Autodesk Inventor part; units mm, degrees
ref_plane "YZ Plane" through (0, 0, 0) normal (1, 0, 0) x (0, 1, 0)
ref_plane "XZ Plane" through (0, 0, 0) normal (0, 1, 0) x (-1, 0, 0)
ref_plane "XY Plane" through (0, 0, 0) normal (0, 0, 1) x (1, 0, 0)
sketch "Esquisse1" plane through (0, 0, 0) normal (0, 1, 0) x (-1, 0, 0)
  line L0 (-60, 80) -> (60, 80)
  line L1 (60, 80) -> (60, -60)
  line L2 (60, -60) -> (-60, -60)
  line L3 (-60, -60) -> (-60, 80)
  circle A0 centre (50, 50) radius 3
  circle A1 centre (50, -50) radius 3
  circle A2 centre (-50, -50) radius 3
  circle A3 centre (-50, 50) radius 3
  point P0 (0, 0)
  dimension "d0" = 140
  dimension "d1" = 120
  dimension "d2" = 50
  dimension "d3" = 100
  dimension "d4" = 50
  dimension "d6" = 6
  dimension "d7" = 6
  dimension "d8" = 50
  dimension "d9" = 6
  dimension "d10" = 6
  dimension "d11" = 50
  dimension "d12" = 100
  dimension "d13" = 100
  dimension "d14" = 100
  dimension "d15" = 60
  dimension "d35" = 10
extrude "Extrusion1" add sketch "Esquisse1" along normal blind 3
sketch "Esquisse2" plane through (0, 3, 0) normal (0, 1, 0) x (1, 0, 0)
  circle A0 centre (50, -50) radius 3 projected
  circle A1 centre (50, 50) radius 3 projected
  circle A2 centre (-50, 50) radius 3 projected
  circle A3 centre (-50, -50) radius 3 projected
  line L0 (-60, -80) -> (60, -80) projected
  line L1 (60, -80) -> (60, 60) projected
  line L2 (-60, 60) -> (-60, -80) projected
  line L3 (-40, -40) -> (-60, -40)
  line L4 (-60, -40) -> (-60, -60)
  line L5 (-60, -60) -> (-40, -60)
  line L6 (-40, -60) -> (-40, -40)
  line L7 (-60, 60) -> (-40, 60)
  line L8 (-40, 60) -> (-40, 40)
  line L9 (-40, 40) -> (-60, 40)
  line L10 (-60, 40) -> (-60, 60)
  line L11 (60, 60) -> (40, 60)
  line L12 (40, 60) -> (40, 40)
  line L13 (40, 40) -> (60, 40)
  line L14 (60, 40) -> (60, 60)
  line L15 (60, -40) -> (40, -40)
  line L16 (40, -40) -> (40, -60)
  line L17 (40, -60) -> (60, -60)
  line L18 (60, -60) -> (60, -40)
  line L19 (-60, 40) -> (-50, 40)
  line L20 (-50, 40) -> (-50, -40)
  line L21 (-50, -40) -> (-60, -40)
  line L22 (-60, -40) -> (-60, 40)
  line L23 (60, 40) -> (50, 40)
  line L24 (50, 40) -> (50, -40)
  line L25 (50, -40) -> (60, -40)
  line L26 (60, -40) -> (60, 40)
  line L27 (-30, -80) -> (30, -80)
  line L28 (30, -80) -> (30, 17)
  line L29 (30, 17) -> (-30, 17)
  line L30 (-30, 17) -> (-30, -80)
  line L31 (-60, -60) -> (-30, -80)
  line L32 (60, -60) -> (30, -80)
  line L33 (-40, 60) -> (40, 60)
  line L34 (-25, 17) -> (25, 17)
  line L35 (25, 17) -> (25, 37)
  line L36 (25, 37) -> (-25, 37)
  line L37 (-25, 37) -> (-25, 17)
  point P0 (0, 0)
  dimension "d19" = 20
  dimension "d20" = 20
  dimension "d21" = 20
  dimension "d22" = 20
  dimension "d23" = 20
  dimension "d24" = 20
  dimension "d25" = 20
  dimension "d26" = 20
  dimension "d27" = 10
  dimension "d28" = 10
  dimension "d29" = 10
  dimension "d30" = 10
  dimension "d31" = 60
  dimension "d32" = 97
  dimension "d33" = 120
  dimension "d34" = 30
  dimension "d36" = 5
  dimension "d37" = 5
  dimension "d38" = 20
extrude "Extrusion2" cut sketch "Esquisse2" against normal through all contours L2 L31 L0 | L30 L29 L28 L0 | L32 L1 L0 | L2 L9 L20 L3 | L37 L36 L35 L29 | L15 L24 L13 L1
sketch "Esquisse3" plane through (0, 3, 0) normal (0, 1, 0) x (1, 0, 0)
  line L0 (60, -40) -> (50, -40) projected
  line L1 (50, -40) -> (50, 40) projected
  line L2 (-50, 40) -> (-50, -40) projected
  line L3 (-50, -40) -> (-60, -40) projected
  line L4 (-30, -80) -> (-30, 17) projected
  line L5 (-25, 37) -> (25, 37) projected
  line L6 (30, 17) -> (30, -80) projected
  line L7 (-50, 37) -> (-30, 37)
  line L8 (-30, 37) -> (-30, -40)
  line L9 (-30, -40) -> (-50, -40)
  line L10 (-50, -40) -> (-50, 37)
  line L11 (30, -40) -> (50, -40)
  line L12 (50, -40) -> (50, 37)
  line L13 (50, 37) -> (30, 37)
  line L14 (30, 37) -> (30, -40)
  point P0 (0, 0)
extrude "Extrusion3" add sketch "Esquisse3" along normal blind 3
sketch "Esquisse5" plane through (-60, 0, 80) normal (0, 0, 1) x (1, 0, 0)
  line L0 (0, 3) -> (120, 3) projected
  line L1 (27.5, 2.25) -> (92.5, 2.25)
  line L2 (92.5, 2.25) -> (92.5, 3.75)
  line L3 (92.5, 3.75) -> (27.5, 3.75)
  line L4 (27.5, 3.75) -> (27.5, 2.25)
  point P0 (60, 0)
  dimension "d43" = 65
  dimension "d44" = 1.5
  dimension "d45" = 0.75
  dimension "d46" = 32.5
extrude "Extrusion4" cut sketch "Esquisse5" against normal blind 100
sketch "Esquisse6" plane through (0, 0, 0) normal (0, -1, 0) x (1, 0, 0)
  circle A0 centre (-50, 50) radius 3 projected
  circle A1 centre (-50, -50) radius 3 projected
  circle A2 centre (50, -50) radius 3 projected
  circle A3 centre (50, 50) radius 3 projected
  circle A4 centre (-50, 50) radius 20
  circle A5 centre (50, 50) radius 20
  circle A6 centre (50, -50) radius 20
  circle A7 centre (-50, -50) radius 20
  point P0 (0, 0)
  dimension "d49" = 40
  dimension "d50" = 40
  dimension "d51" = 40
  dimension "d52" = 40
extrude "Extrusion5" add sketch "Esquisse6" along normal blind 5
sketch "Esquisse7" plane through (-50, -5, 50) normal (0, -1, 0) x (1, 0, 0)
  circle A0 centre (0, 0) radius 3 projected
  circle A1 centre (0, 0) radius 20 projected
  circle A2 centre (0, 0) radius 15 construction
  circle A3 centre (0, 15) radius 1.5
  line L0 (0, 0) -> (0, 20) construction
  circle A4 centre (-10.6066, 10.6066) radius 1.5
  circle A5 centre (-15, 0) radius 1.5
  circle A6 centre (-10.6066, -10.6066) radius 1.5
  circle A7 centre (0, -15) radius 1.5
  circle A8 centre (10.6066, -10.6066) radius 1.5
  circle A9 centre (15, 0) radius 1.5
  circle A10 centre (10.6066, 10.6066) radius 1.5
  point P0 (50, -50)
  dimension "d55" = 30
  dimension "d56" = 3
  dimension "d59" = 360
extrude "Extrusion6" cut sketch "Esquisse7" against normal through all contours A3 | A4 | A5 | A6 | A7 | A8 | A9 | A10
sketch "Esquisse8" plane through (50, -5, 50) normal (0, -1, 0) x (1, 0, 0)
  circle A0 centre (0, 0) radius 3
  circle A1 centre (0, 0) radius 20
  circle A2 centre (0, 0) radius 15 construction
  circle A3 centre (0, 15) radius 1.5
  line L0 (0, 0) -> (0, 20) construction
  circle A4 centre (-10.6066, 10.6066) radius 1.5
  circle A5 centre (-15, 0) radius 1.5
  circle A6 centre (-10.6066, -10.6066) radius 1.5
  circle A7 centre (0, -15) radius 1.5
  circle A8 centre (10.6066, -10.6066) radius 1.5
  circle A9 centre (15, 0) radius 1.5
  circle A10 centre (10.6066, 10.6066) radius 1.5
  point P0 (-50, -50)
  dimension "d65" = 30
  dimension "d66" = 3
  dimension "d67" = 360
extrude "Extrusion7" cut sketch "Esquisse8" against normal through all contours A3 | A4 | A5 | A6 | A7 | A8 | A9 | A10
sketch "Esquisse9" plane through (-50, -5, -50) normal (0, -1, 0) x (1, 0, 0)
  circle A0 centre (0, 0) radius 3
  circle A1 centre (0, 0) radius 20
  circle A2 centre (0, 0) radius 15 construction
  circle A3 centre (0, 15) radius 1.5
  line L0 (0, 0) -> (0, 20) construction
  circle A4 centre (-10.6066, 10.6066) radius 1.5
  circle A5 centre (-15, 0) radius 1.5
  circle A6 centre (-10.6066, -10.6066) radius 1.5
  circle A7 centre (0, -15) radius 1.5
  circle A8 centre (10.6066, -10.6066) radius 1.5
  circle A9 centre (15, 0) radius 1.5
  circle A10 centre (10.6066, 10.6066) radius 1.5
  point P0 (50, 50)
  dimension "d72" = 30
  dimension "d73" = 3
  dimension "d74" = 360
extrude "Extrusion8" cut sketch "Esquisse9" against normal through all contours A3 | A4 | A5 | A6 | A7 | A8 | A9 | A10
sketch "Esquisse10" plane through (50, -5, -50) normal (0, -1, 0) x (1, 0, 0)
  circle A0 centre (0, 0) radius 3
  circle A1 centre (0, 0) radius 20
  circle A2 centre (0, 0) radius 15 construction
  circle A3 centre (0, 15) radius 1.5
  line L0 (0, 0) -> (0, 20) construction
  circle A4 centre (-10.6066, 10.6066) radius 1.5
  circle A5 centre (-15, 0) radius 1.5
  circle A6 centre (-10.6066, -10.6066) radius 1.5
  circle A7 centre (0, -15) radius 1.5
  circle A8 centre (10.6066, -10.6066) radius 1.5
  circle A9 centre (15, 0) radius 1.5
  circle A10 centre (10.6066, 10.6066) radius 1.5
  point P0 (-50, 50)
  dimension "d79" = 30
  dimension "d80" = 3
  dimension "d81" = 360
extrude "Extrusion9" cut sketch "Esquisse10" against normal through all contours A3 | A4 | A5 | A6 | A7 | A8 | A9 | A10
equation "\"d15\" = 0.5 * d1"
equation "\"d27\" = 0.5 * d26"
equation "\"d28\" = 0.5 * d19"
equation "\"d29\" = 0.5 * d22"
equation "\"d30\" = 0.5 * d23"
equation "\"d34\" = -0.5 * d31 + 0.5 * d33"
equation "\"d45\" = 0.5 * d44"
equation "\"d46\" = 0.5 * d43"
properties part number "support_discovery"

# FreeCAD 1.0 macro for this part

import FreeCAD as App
import Part
import Sketcher
from FreeCAD import Vector
Q = App.Units.Quantity


def add_polygon(sketch, points):
    """Adds a closed chain of lines whose ends are joined by coincident constraints."""
    first, n = sketch.GeometryCount, len(points)
    for a, b in zip(points, points[1:] + points[:1]):
        sketch.addGeometry(Part.LineSegment(App.Vector(*a, 0), App.Vector(*b, 0)), False)
    for i in range(n):
        sketch.addConstraint(Sketcher.Constraint("Coincident", first + i, 2, first + (i + 1) % n, 1))

doc = App.newDocument("Part")
body = doc.addObject("PartDesign::Body", "Body")

sketch1 = body.newObject("Sketcher::SketchObject", "Sketch")
sketch1.AttachmentSupport = (doc.getObject("XZ_Plane"), [""])
sketch1.MapMode = "FlatFace"
add_polygon(sketch1, [(-60, 80), (60, 80), (60, -60), (-60, -60)])
sketch1.addGeometry(Part.Circle(Vector(50, -50, 0), Vector(0, 0, 1), 3), False)
sketch1.addGeometry(Part.Circle(Vector(-50, -50, 0), Vector(0, 0, 1), 3), False)
sketch1.addGeometry(Part.Circle(Vector(50, 50, 0), Vector(0, 0, 1), 3), False)
sketch1.addGeometry(Part.Circle(Vector(-50, 50, 0), Vector(0, 0, 1), 3), False)
sketch1.addConstraint(Sketcher.Constraint("Horizontal", 0))
sketch1.addConstraint(Sketcher.Constraint("Vertical", 1))
sketch1.addConstraint(Sketcher.Constraint("Horizontal", 2))
sketch1.addConstraint(Sketcher.Constraint("Vertical", 3))
sketch1.addConstraint(Sketcher.Constraint("Equal", 4, 5))
sketch1.addConstraint(Sketcher.Constraint("Equal", 5, 6))
sketch1.addConstraint(Sketcher.Constraint("Equal", 6, 7))
sketch1.addConstraint(Sketcher.Constraint("Symmetric", 5, 3, 6, 3, -1, 1))
sketch1.addConstraint(Sketcher.Constraint("Symmetric", 4, 3, 7, 3, -1, 1))
sketch1.addConstraint(Sketcher.Constraint("Symmetric", 4, 3, 5, 3, -2))
sketch1.addConstraint(Sketcher.Constraint("Diameter", 4, Q("6 mm")))
sketch1.addConstraint(Sketcher.Constraint("DistanceX", 0, 1, 0, 2, Q("120 mm")))
sketch1.addConstraint(Sketcher.Constraint("DistanceY", 1, 2, 1, 1, Q("140 mm")))
sketch1.addConstraint(Sketcher.Constraint("DistanceX", -1, 1, 4, 3, Q("50 mm")))
sketch1.addConstraint(Sketcher.Constraint("DistanceY", 4, 3, -1, 1, Q("50 mm")))
sketch1.addConstraint(Sketcher.Constraint("DistanceX", -1, 1, 0, 2, Q("60 mm")))
sketch1.addConstraint(Sketcher.Constraint("DistanceY", 1, 2, -1, 1, Q("60 mm")))
pad1 = body.newObject("PartDesign::Pad", "Pad")
pad1.Profile = sketch1
pad1.Length = 3
pad1.Reversed = True

sketch2 = body.newObject("Sketcher::SketchObject", "Sketch001")
sketch2.AttachmentSupport = (doc.getObject("XZ_Plane"), [""])
sketch2.MapMode = "FlatFace"
sketch2.AttachmentOffset = App.Placement(Vector(0, 0, -3), App.Rotation())
add_polygon(sketch2, [(-60, 60), (-60, 80), (-30, 80)])
add_polygon(sketch2, [(-30, -17), (-30, 80), (30, 80), (30, -17), (25, -17), (25, -37), (-25, -37), (-25, -17)])
add_polygon(sketch2, [(60, 60), (30, 80), (60, 80)])
add_polygon(sketch2, [(-60, -40), (-60, 40), (-50, 40), (-50, -40)])
add_polygon(sketch2, [(50, 40), (60, 40), (60, -40), (50, -40)])
sketch2.addConstraint(Sketcher.Constraint("Vertical", 0))
sketch2.addConstraint(Sketcher.Constraint("Horizontal", 1))
sketch2.addConstraint(Sketcher.Constraint("Vertical", 3))
sketch2.addConstraint(Sketcher.Constraint("Horizontal", 4))
sketch2.addConstraint(Sketcher.Constraint("Vertical", 5))
sketch2.addConstraint(Sketcher.Constraint("Horizontal", 6))
sketch2.addConstraint(Sketcher.Constraint("Vertical", 7))
sketch2.addConstraint(Sketcher.Constraint("Horizontal", 8))
sketch2.addConstraint(Sketcher.Constraint("Vertical", 9))
sketch2.addConstraint(Sketcher.Constraint("Horizontal", 10))
sketch2.addConstraint(Sketcher.Constraint("Horizontal", 12))
sketch2.addConstraint(Sketcher.Constraint("Vertical", 13))
sketch2.addConstraint(Sketcher.Constraint("Vertical", 14))
sketch2.addConstraint(Sketcher.Constraint("Horizontal", 15))
sketch2.addConstraint(Sketcher.Constraint("Vertical", 16))
sketch2.addConstraint(Sketcher.Constraint("Horizontal", 17))
sketch2.addConstraint(Sketcher.Constraint("Horizontal", 18))
sketch2.addConstraint(Sketcher.Constraint("Vertical", 19))
sketch2.addConstraint(Sketcher.Constraint("Horizontal", 20))
sketch2.addConstraint(Sketcher.Constraint("Vertical", 21))
sketch2.addConstraint(Sketcher.Constraint("Coincident", 3, 2, 1, 2))
sketch2.addConstraint(Sketcher.Constraint("Coincident", 11, 2, 4, 2))
sketch2.addConstraint(Sketcher.Constraint("Symmetric", 17, 2, 18, 2, -1, 1))
sketch2.addConstraint(Sketcher.Constraint("Symmetric", 15, 2, 20, 2, -1, 1))
sketch2.addConstraint(Sketcher.Constraint("Symmetric", 6, 2, 9, 2, -2))
sketch2.addConstraint(Sketcher.Constraint("Symmetric", 2, 2, 13, 2, -2))
sketch2.addConstraint(Sketcher.Constraint("Horizontal", 15, 2, 18, 2))
sketch2.addConstraint(Sketcher.Constraint("Vertical", 2, 2, 14, 2))
sketch2.addConstraint(Sketcher.Constraint("Equal", 6, 10))
sketch2.addConstraint(Sketcher.Constraint("Equal", 0, 7))
sketch2.addConstraint(Sketcher.Constraint("DistanceX", 1, 1, 1, 2, Q("30 mm")))
sketch2.addConstraint(Sketcher.Constraint("DistanceX", 4, 1, 4, 2, Q("60 mm")))
sketch2.addConstraint(Sketcher.Constraint("DistanceX", 6, 2, 6, 1, Q("5 mm")))
sketch2.addConstraint(Sketcher.Constraint("DistanceX", 15, 1, 15, 2, Q("10 mm")))
sketch2.addConstraint(Sketcher.Constraint("DistanceY", 0, 1, 0, 2, Q("20 mm")))
sketch2.addConstraint(Sketcher.Constraint("DistanceY", 3, 1, 3, 2, Q("97 mm")))
sketch2.addConstraint(Sketcher.Constraint("DistanceY", -1, 1, 2, 2, Q("60 mm")))
sketch2.addConstraint(Sketcher.Constraint("DistanceY", 14, 2, 2, 2, Q("20 mm")))
pocket1 = body.newObject("PartDesign::Pocket", "Pocket")
pocket1.Profile = sketch2
pocket1.Type = "ThroughAll"
pocket1.Reversed = True

sketch3 = body.newObject("Sketcher::SketchObject", "Sketch002")
sketch3.AttachmentSupport = (doc.getObject("XZ_Plane"), [""])
sketch3.MapMode = "FlatFace"
sketch3.AttachmentOffset = App.Placement(Vector(0, 0, -3), App.Rotation())
add_polygon(sketch3, [(30, 40), (50, 40), (50, -37), (30, -37)])
add_polygon(sketch3, [(-30, -37), (-50, -37), (-50, 40), (-30, 40)])
sketch3.addConstraint(Sketcher.Constraint("Horizontal", 0))
sketch3.addConstraint(Sketcher.Constraint("Vertical", 1))
sketch3.addConstraint(Sketcher.Constraint("Horizontal", 2))
sketch3.addConstraint(Sketcher.Constraint("Vertical", 3))
sketch3.addConstraint(Sketcher.Constraint("Horizontal", 4))
sketch3.addConstraint(Sketcher.Constraint("Vertical", 5))
sketch3.addConstraint(Sketcher.Constraint("Horizontal", 6))
sketch3.addConstraint(Sketcher.Constraint("Vertical", 7))
sketch3.addConstraint(Sketcher.Constraint("Symmetric", 1, 2, 4, 2, -2))
sketch3.addConstraint(Sketcher.Constraint("Symmetric", 3, 2, 6, 2, -2))
sketch3.addConstraint(Sketcher.Constraint("DistanceX", 0, 1, 0, 2, Q("20 mm")))
sketch3.addConstraint(Sketcher.Constraint("DistanceY", 1, 2, 1, 1, Q("77 mm")))
sketch3.addConstraint(Sketcher.Constraint("DistanceX", -1, 1, 0, 2, Q("50 mm")))
sketch3.addConstraint(Sketcher.Constraint("DistanceY", -1, 1, 0, 2, Q("40 mm")))
pad2 = body.newObject("PartDesign::Pad", "Pad001")
pad2.Profile = sketch3
pad2.Length = 3
pad2.Reversed = True

sketch4 = body.newObject("Sketcher::SketchObject", "Sketch003")
sketch4.AttachmentSupport = (doc.getObject("XY_Plane"), [""])
sketch4.MapMode = "FlatFace"
sketch4.AttachmentOffset = App.Placement(Vector(0, 0, 80), App.Rotation())
add_polygon(sketch4, [(-32.5, 3.75), (-32.5, 2.25), (32.5, 2.25), (32.5, 3.75)])
sketch4.addConstraint(Sketcher.Constraint("Vertical", 0))
sketch4.addConstraint(Sketcher.Constraint("Horizontal", 1))
sketch4.addConstraint(Sketcher.Constraint("Vertical", 2))
sketch4.addConstraint(Sketcher.Constraint("Horizontal", 3))
sketch4.addConstraint(Sketcher.Constraint("DistanceX", 1, 1, 1, 2, Q("65 mm")))
sketch4.addConstraint(Sketcher.Constraint("DistanceY", 0, 2, 0, 1, Q("1.5 mm")))
sketch4.addConstraint(Sketcher.Constraint("DistanceX", 0, 2, -1, 1, Q("32.5 mm")))
sketch4.addConstraint(Sketcher.Constraint("DistanceY", -1, 1, 0, 2, Q("2.25 mm")))
pocket2 = body.newObject("PartDesign::Pocket", "Pocket001")
pocket2.Profile = sketch4
pocket2.Length = 100

sketch5 = body.newObject("Sketcher::SketchObject", "Sketch004")
sketch5.AttachmentSupport = (doc.getObject("XZ_Plane"), [""])
sketch5.MapMode = "FlatFace"
sketch5.addGeometry(Part.Circle(Vector(-50, 50, 0), Vector(0, 0, 1), 20), False)
sketch5.addGeometry(Part.Circle(Vector(-50, 50, 0), Vector(0, 0, 1), 3), False)
sketch5.addGeometry(Part.Circle(Vector(50, 50, 0), Vector(0, 0, 1), 20), False)
sketch5.addGeometry(Part.Circle(Vector(50, 50, 0), Vector(0, 0, 1), 3), False)
sketch5.addGeometry(Part.Circle(Vector(50, -50, 0), Vector(0, 0, 1), 20), False)
sketch5.addGeometry(Part.Circle(Vector(50, -50, 0), Vector(0, 0, 1), 3), False)
sketch5.addGeometry(Part.Circle(Vector(-50, -50, 0), Vector(0, 0, 1), 20), False)
sketch5.addGeometry(Part.Circle(Vector(-50, -50, 0), Vector(0, 0, 1), 3), False)
sketch5.addConstraint(Sketcher.Constraint("Coincident", 1, 3, 0, 3))
sketch5.addConstraint(Sketcher.Constraint("Coincident", 3, 3, 2, 3))
sketch5.addConstraint(Sketcher.Constraint("Coincident", 5, 3, 4, 3))
sketch5.addConstraint(Sketcher.Constraint("Coincident", 7, 3, 6, 3))
sketch5.addConstraint(Sketcher.Constraint("Equal", 0, 2))
sketch5.addConstraint(Sketcher.Constraint("Equal", 1, 3))
sketch5.addConstraint(Sketcher.Constraint("Equal", 2, 4))
sketch5.addConstraint(Sketcher.Constraint("Equal", 3, 5))
sketch5.addConstraint(Sketcher.Constraint("Equal", 4, 6))
sketch5.addConstraint(Sketcher.Constraint("Equal", 5, 7))
sketch5.addConstraint(Sketcher.Constraint("Symmetric", 0, 3, 4, 3, -1, 1))
sketch5.addConstraint(Sketcher.Constraint("Symmetric", 2, 3, 6, 3, -1, 1))
sketch5.addConstraint(Sketcher.Constraint("Symmetric", 0, 3, 2, 3, -2))
sketch5.addConstraint(Sketcher.Constraint("Diameter", 0, Q("40 mm")))
sketch5.addConstraint(Sketcher.Constraint("Diameter", 1, Q("6 mm")))
sketch5.addConstraint(Sketcher.Constraint("DistanceX", 0, 3, -1, 1, Q("50 mm")))
sketch5.addConstraint(Sketcher.Constraint("DistanceY", -1, 1, 0, 3, Q("50 mm")))
pad3 = body.newObject("PartDesign::Pad", "Pad002")
pad3.Profile = sketch5
pad3.Length = 5

sketch6 = body.newObject("Sketcher::SketchObject", "Sketch005")
sketch6.AttachmentSupport = (doc.getObject("XZ_Plane"), [""])
sketch6.MapMode = "FlatFace"
sketch6.AttachmentOffset = App.Placement(Vector(0, 0, 5), App.Rotation())
sketch6.addGeometry(Part.Circle(Vector(-50, 65, 0), Vector(0, 0, 1), 1.5), False)
sketch6.addGeometry(Part.Circle(Vector(-60.6066, 60.6066, 0), Vector(0, 0, 1), 1.5), False)
sketch6.addGeometry(Part.Circle(Vector(-65, 50, 0), Vector(0, 0, 1), 1.5), False)
sketch6.addGeometry(Part.Circle(Vector(-60.6066, 39.3934, 0), Vector(0, 0, 1), 1.5), False)
sketch6.addGeometry(Part.Circle(Vector(-50, 35, 0), Vector(0, 0, 1), 1.5), False)
sketch6.addGeometry(Part.Circle(Vector(-39.3934, 39.3934, 0), Vector(0, 0, 1), 1.5), False)
sketch6.addGeometry(Part.Circle(Vector(-35, 50, 0), Vector(0, 0, 1), 1.5), False)
sketch6.addGeometry(Part.Circle(Vector(-39.3934, 60.6066, 0), Vector(0, 0, 1), 1.5), False)
sketch6.addConstraint(Sketcher.Constraint("Equal", 0, 1))
sketch6.addConstraint(Sketcher.Constraint("Equal", 1, 2))
sketch6.addConstraint(Sketcher.Constraint("Equal", 2, 3))
sketch6.addConstraint(Sketcher.Constraint("Equal", 3, 4))
sketch6.addConstraint(Sketcher.Constraint("Equal", 4, 5))
sketch6.addConstraint(Sketcher.Constraint("Equal", 5, 6))
sketch6.addConstraint(Sketcher.Constraint("Equal", 6, 7))
sketch6.addConstraint(Sketcher.Constraint("Horizontal", 3, 3, 5, 3))
sketch6.addConstraint(Sketcher.Constraint("Horizontal", 2, 3, 6, 3))
sketch6.addConstraint(Sketcher.Constraint("Horizontal", 1, 3, 7, 3))
sketch6.addConstraint(Sketcher.Constraint("Vertical", 1, 3, 3, 3))
sketch6.addConstraint(Sketcher.Constraint("Vertical", 0, 3, 4, 3))
sketch6.addConstraint(Sketcher.Constraint("Vertical", 5, 3, 7, 3))
sketch6.addConstraint(Sketcher.Constraint("Diameter", 0, Q("3 mm")))
sketch6.addConstraint(Sketcher.Constraint("DistanceY", 4, 3, 0, 3, Q("30 mm")))
sketch6.addConstraint(Sketcher.Constraint("DistanceX", 0, 3, -1, 1, Q("50 mm")))
sketch6.addConstraint(Sketcher.Constraint("DistanceY", -1, 1, 0, 3, Q("65 mm")))
sketch6.addConstraint(Sketcher.Constraint("DistanceX", 2, 3, -1, 1, Q("65 mm")))
sketch6.addConstraint(Sketcher.Constraint("DistanceY", -1, 1, 2, 3, Q("50 mm")))
sketch6.addConstraint(Sketcher.Constraint("DistanceX", 6, 3, -1, 1, Q("35 mm")))
sketch6.addConstraint(Sketcher.Constraint("DistanceX", 1, 3, -1, 1, Q("60.6066 mm")))
sketch6.addConstraint(Sketcher.Constraint("DistanceY", -1, 1, 1, 3, Q("60.6066 mm")))
sketch6.addConstraint(Sketcher.Constraint("DistanceY", -1, 1, 3, 3, Q("39.3934 mm")))
sketch6.addConstraint(Sketcher.Constraint("DistanceX", 5, 3, -1, 1, Q("39.3934 mm")))
pocket3 = body.newObject("PartDesign::Pocket", "Pocket002")
pocket3.Profile = sketch6
pocket3.Type = "ThroughAll"

sketch7 = body.newObject("Sketcher::SketchObject", "Sketch006")
sketch7.AttachmentSupport = (doc.getObject("XZ_Plane"), [""])
sketch7.MapMode = "FlatFace"
sketch7.AttachmentOffset = App.Placement(Vector(0, 0, 5), App.Rotation())
sketch7.addGeometry(Part.Circle(Vector(50, 65, 0), Vector(0, 0, 1), 1.5), False)
sketch7.addGeometry(Part.Circle(Vector(39.3934, 60.6066, 0), Vector(0, 0, 1), 1.5), False)
sketch7.addGeometry(Part.Circle(Vector(35, 50, 0), Vector(0, 0, 1), 1.5), False)
sketch7.addGeometry(Part.Circle(Vector(39.3934, 39.3934, 0), Vector(0, 0, 1), 1.5), False)
sketch7.addGeometry(Part.Circle(Vector(50, 35, 0), Vector(0, 0, 1), 1.5), False)
sketch7.addGeometry(Part.Circle(Vector(60.6066, 39.3934, 0), Vector(0, 0, 1), 1.5), False)
sketch7.addGeometry(Part.Circle(Vector(65, 50, 0), Vector(0, 0, 1), 1.5), False)
sketch7.addGeometry(Part.Circle(Vector(60.6066, 60.6066, 0), Vector(0, 0, 1), 1.5), False)
sketch7.addConstraint(Sketcher.Constraint("Equal", 0, 1))
sketch7.addConstraint(Sketcher.Constraint("Equal", 1, 2))
sketch7.addConstraint(Sketcher.Constraint("Equal", 2, 3))
sketch7.addConstraint(Sketcher.Constraint("Equal", 3, 4))
sketch7.addConstraint(Sketcher.Constraint("Equal", 4, 5))
sketch7.addConstraint(Sketcher.Constraint("Equal", 5, 6))
sketch7.addConstraint(Sketcher.Constraint("Equal", 6, 7))
sketch7.addConstraint(Sketcher.Constraint("Horizontal", 3, 3, 5, 3))
sketch7.addConstraint(Sketcher.Constraint("Horizontal", 2, 3, 6, 3))
sketch7.addConstraint(Sketcher.Constraint("Horizontal", 1, 3, 7, 3))
sketch7.addConstraint(Sketcher.Constraint("Vertical", 1, 3, 3, 3))
sketch7.addConstraint(Sketcher.Constraint("Vertical", 0, 3, 4, 3))
sketch7.addConstraint(Sketcher.Constraint("Vertical", 5, 3, 7, 3))
sketch7.addConstraint(Sketcher.Constraint("Diameter", 0, Q("3 mm")))
sketch7.addConstraint(Sketcher.Constraint("DistanceY", 4, 3, 0, 3, Q("30 mm")))
sketch7.addConstraint(Sketcher.Constraint("DistanceX", -1, 1, 0, 3, Q("50 mm")))
sketch7.addConstraint(Sketcher.Constraint("DistanceY", -1, 1, 0, 3, Q("65 mm")))
sketch7.addConstraint(Sketcher.Constraint("DistanceX", -1, 1, 2, 3, Q("35 mm")))
sketch7.addConstraint(Sketcher.Constraint("DistanceY", -1, 1, 2, 3, Q("50 mm")))
sketch7.addConstraint(Sketcher.Constraint("DistanceX", -1, 1, 6, 3, Q("65 mm")))
sketch7.addConstraint(Sketcher.Constraint("DistanceX", -1, 1, 1, 3, Q("39.3934 mm")))
sketch7.addConstraint(Sketcher.Constraint("DistanceY", -1, 1, 1, 3, Q("60.6066 mm")))
sketch7.addConstraint(Sketcher.Constraint("DistanceY", -1, 1, 3, 3, Q("39.3934 mm")))
sketch7.addConstraint(Sketcher.Constraint("DistanceX", -1, 1, 5, 3, Q("60.6066 mm")))
pocket4 = body.newObject("PartDesign::Pocket", "Pocket003")
pocket4.Profile = sketch7
pocket4.Type = "ThroughAll"

sketch8 = body.newObject("Sketcher::SketchObject", "Sketch007")
sketch8.AttachmentSupport = (doc.getObject("XZ_Plane"), [""])
sketch8.MapMode = "FlatFace"
sketch8.AttachmentOffset = App.Placement(Vector(0, 0, 5), App.Rotation())
sketch8.addGeometry(Part.Circle(Vector(-50, -35, 0), Vector(0, 0, 1), 1.5), False)
sketch8.addGeometry(Part.Circle(Vector(-60.6066, -39.3934, 0), Vector(0, 0, 1), 1.5), False)
sketch8.addGeometry(Part.Circle(Vector(-65, -50, 0), Vector(0, 0, 1), 1.5), False)
sketch8.addGeometry(Part.Circle(Vector(-60.6066, -60.6066, 0), Vector(0, 0, 1), 1.5), False)
sketch8.addGeometry(Part.Circle(Vector(-50, -65, 0), Vector(0, 0, 1), 1.5), False)
sketch8.addGeometry(Part.Circle(Vector(-39.3934, -60.6066, 0), Vector(0, 0, 1), 1.5), False)
sketch8.addGeometry(Part.Circle(Vector(-35, -50, 0), Vector(0, 0, 1), 1.5), False)
sketch8.addGeometry(Part.Circle(Vector(-39.3934, -39.3934, 0), Vector(0, 0, 1), 1.5), False)
sketch8.addConstraint(Sketcher.Constraint("Equal", 0, 1))
sketch8.addConstraint(Sketcher.Constraint("Equal", 1, 2))
sketch8.addConstraint(Sketcher.Constraint("Equal", 2, 3))
sketch8.addConstraint(Sketcher.Constraint("Equal", 3, 4))
sketch8.addConstraint(Sketcher.Constraint("Equal", 4, 5))
sketch8.addConstraint(Sketcher.Constraint("Equal", 5, 6))
sketch8.addConstraint(Sketcher.Constraint("Equal", 6, 7))
sketch8.addConstraint(Sketcher.Constraint("Horizontal", 3, 3, 5, 3))
sketch8.addConstraint(Sketcher.Constraint("Horizontal", 2, 3, 6, 3))
sketch8.addConstraint(Sketcher.Constraint("Horizontal", 1, 3, 7, 3))
sketch8.addConstraint(Sketcher.Constraint("Vertical", 1, 3, 3, 3))
sketch8.addConstraint(Sketcher.Constraint("Vertical", 0, 3, 4, 3))
sketch8.addConstraint(Sketcher.Constraint("Vertical", 5, 3, 7, 3))
sketch8.addConstraint(Sketcher.Constraint("Diameter", 0, Q("3 mm")))
sketch8.addConstraint(Sketcher.Constraint("DistanceY", 4, 3, 0, 3, Q("30 mm")))
sketch8.addConstraint(Sketcher.Constraint("DistanceX", 0, 3, -1, 1, Q("50 mm")))
sketch8.addConstraint(Sketcher.Constraint("DistanceY", 0, 3, -1, 1, Q("35 mm")))
sketch8.addConstraint(Sketcher.Constraint("DistanceX", 2, 3, -1, 1, Q("65 mm")))
sketch8.addConstraint(Sketcher.Constraint("DistanceY", 2, 3, -1, 1, Q("50 mm")))
sketch8.addConstraint(Sketcher.Constraint("DistanceX", 6, 3, -1, 1, Q("35 mm")))
sketch8.addConstraint(Sketcher.Constraint("DistanceX", 1, 3, -1, 1, Q("60.6066 mm")))
sketch8.addConstraint(Sketcher.Constraint("DistanceY", 1, 3, -1, 1, Q("39.3934 mm")))
sketch8.addConstraint(Sketcher.Constraint("DistanceY", 3, 3, -1, 1, Q("60.6066 mm")))
sketch8.addConstraint(Sketcher.Constraint("DistanceX", 5, 3, -1, 1, Q("39.3934 mm")))
pocket5 = body.newObject("PartDesign::Pocket", "Pocket004")
pocket5.Profile = sketch8
pocket5.Type = "ThroughAll"

sketch9 = body.newObject("Sketcher::SketchObject", "Sketch008")
sketch9.AttachmentSupport = (doc.getObject("XZ_Plane"), [""])
sketch9.MapMode = "FlatFace"
sketch9.AttachmentOffset = App.Placement(Vector(0, 0, 5), App.Rotation())
sketch9.addGeometry(Part.Circle(Vector(50, -35, 0), Vector(0, 0, 1), 1.5), False)
sketch9.addGeometry(Part.Circle(Vector(39.3934, -39.3934, 0), Vector(0, 0, 1), 1.5), False)
sketch9.addGeometry(Part.Circle(Vector(35, -50, 0), Vector(0, 0, 1), 1.5), False)
sketch9.addGeometry(Part.Circle(Vector(39.3934, -60.6066, 0), Vector(0, 0, 1), 1.5), False)
sketch9.addGeometry(Part.Circle(Vector(50, -65, 0), Vector(0, 0, 1), 1.5), False)
sketch9.addGeometry(Part.Circle(Vector(60.6066, -60.6066, 0), Vector(0, 0, 1), 1.5), False)
sketch9.addGeometry(Part.Circle(Vector(65, -50, 0), Vector(0, 0, 1), 1.5), False)
sketch9.addGeometry(Part.Circle(Vector(60.6066, -39.3934, 0), Vector(0, 0, 1), 1.5), False)
sketch9.addConstraint(Sketcher.Constraint("Equal", 0, 1))
sketch9.addConstraint(Sketcher.Constraint("Equal", 1, 2))
sketch9.addConstraint(Sketcher.Constraint("Equal", 2, 3))
sketch9.addConstraint(Sketcher.Constraint("Equal", 3, 4))
sketch9.addConstraint(Sketcher.Constraint("Equal", 4, 5))
sketch9.addConstraint(Sketcher.Constraint("Equal", 5, 6))
sketch9.addConstraint(Sketcher.Constraint("Equal", 6, 7))
sketch9.addConstraint(Sketcher.Constraint("Horizontal", 3, 3, 5, 3))
sketch9.addConstraint(Sketcher.Constraint("Horizontal", 2, 3, 6, 3))
sketch9.addConstraint(Sketcher.Constraint("Horizontal", 1, 3, 7, 3))
sketch9.addConstraint(Sketcher.Constraint("Vertical", 1, 3, 3, 3))
sketch9.addConstraint(Sketcher.Constraint("Vertical", 0, 3, 4, 3))
sketch9.addConstraint(Sketcher.Constraint("Vertical", 5, 3, 7, 3))
sketch9.addConstraint(Sketcher.Constraint("Diameter", 0, Q("3 mm")))
sketch9.addConstraint(Sketcher.Constraint("DistanceY", 4, 3, 0, 3, Q("30 mm")))
sketch9.addConstraint(Sketcher.Constraint("DistanceX", -1, 1, 0, 3, Q("50 mm")))
sketch9.addConstraint(Sketcher.Constraint("DistanceY", 0, 3, -1, 1, Q("35 mm")))
sketch9.addConstraint(Sketcher.Constraint("DistanceX", -1, 1, 2, 3, Q("35 mm")))
sketch9.addConstraint(Sketcher.Constraint("DistanceY", 2, 3, -1, 1, Q("50 mm")))
sketch9.addConstraint(Sketcher.Constraint("DistanceX", -1, 1, 6, 3, Q("65 mm")))
sketch9.addConstraint(Sketcher.Constraint("DistanceX", -1, 1, 1, 3, Q("39.3934 mm")))
sketch9.addConstraint(Sketcher.Constraint("DistanceY", 1, 3, -1, 1, Q("39.3934 mm")))
sketch9.addConstraint(Sketcher.Constraint("DistanceY", 3, 3, -1, 1, Q("60.6066 mm")))
sketch9.addConstraint(Sketcher.Constraint("DistanceX", -1, 1, 5, 3, Q("60.6066 mm")))
pocket6 = body.newObject("PartDesign::Pocket", "Pocket005")
pocket6.Profile = sketch9
pocket6.Type = "ThroughAll"

doc.recompute()
